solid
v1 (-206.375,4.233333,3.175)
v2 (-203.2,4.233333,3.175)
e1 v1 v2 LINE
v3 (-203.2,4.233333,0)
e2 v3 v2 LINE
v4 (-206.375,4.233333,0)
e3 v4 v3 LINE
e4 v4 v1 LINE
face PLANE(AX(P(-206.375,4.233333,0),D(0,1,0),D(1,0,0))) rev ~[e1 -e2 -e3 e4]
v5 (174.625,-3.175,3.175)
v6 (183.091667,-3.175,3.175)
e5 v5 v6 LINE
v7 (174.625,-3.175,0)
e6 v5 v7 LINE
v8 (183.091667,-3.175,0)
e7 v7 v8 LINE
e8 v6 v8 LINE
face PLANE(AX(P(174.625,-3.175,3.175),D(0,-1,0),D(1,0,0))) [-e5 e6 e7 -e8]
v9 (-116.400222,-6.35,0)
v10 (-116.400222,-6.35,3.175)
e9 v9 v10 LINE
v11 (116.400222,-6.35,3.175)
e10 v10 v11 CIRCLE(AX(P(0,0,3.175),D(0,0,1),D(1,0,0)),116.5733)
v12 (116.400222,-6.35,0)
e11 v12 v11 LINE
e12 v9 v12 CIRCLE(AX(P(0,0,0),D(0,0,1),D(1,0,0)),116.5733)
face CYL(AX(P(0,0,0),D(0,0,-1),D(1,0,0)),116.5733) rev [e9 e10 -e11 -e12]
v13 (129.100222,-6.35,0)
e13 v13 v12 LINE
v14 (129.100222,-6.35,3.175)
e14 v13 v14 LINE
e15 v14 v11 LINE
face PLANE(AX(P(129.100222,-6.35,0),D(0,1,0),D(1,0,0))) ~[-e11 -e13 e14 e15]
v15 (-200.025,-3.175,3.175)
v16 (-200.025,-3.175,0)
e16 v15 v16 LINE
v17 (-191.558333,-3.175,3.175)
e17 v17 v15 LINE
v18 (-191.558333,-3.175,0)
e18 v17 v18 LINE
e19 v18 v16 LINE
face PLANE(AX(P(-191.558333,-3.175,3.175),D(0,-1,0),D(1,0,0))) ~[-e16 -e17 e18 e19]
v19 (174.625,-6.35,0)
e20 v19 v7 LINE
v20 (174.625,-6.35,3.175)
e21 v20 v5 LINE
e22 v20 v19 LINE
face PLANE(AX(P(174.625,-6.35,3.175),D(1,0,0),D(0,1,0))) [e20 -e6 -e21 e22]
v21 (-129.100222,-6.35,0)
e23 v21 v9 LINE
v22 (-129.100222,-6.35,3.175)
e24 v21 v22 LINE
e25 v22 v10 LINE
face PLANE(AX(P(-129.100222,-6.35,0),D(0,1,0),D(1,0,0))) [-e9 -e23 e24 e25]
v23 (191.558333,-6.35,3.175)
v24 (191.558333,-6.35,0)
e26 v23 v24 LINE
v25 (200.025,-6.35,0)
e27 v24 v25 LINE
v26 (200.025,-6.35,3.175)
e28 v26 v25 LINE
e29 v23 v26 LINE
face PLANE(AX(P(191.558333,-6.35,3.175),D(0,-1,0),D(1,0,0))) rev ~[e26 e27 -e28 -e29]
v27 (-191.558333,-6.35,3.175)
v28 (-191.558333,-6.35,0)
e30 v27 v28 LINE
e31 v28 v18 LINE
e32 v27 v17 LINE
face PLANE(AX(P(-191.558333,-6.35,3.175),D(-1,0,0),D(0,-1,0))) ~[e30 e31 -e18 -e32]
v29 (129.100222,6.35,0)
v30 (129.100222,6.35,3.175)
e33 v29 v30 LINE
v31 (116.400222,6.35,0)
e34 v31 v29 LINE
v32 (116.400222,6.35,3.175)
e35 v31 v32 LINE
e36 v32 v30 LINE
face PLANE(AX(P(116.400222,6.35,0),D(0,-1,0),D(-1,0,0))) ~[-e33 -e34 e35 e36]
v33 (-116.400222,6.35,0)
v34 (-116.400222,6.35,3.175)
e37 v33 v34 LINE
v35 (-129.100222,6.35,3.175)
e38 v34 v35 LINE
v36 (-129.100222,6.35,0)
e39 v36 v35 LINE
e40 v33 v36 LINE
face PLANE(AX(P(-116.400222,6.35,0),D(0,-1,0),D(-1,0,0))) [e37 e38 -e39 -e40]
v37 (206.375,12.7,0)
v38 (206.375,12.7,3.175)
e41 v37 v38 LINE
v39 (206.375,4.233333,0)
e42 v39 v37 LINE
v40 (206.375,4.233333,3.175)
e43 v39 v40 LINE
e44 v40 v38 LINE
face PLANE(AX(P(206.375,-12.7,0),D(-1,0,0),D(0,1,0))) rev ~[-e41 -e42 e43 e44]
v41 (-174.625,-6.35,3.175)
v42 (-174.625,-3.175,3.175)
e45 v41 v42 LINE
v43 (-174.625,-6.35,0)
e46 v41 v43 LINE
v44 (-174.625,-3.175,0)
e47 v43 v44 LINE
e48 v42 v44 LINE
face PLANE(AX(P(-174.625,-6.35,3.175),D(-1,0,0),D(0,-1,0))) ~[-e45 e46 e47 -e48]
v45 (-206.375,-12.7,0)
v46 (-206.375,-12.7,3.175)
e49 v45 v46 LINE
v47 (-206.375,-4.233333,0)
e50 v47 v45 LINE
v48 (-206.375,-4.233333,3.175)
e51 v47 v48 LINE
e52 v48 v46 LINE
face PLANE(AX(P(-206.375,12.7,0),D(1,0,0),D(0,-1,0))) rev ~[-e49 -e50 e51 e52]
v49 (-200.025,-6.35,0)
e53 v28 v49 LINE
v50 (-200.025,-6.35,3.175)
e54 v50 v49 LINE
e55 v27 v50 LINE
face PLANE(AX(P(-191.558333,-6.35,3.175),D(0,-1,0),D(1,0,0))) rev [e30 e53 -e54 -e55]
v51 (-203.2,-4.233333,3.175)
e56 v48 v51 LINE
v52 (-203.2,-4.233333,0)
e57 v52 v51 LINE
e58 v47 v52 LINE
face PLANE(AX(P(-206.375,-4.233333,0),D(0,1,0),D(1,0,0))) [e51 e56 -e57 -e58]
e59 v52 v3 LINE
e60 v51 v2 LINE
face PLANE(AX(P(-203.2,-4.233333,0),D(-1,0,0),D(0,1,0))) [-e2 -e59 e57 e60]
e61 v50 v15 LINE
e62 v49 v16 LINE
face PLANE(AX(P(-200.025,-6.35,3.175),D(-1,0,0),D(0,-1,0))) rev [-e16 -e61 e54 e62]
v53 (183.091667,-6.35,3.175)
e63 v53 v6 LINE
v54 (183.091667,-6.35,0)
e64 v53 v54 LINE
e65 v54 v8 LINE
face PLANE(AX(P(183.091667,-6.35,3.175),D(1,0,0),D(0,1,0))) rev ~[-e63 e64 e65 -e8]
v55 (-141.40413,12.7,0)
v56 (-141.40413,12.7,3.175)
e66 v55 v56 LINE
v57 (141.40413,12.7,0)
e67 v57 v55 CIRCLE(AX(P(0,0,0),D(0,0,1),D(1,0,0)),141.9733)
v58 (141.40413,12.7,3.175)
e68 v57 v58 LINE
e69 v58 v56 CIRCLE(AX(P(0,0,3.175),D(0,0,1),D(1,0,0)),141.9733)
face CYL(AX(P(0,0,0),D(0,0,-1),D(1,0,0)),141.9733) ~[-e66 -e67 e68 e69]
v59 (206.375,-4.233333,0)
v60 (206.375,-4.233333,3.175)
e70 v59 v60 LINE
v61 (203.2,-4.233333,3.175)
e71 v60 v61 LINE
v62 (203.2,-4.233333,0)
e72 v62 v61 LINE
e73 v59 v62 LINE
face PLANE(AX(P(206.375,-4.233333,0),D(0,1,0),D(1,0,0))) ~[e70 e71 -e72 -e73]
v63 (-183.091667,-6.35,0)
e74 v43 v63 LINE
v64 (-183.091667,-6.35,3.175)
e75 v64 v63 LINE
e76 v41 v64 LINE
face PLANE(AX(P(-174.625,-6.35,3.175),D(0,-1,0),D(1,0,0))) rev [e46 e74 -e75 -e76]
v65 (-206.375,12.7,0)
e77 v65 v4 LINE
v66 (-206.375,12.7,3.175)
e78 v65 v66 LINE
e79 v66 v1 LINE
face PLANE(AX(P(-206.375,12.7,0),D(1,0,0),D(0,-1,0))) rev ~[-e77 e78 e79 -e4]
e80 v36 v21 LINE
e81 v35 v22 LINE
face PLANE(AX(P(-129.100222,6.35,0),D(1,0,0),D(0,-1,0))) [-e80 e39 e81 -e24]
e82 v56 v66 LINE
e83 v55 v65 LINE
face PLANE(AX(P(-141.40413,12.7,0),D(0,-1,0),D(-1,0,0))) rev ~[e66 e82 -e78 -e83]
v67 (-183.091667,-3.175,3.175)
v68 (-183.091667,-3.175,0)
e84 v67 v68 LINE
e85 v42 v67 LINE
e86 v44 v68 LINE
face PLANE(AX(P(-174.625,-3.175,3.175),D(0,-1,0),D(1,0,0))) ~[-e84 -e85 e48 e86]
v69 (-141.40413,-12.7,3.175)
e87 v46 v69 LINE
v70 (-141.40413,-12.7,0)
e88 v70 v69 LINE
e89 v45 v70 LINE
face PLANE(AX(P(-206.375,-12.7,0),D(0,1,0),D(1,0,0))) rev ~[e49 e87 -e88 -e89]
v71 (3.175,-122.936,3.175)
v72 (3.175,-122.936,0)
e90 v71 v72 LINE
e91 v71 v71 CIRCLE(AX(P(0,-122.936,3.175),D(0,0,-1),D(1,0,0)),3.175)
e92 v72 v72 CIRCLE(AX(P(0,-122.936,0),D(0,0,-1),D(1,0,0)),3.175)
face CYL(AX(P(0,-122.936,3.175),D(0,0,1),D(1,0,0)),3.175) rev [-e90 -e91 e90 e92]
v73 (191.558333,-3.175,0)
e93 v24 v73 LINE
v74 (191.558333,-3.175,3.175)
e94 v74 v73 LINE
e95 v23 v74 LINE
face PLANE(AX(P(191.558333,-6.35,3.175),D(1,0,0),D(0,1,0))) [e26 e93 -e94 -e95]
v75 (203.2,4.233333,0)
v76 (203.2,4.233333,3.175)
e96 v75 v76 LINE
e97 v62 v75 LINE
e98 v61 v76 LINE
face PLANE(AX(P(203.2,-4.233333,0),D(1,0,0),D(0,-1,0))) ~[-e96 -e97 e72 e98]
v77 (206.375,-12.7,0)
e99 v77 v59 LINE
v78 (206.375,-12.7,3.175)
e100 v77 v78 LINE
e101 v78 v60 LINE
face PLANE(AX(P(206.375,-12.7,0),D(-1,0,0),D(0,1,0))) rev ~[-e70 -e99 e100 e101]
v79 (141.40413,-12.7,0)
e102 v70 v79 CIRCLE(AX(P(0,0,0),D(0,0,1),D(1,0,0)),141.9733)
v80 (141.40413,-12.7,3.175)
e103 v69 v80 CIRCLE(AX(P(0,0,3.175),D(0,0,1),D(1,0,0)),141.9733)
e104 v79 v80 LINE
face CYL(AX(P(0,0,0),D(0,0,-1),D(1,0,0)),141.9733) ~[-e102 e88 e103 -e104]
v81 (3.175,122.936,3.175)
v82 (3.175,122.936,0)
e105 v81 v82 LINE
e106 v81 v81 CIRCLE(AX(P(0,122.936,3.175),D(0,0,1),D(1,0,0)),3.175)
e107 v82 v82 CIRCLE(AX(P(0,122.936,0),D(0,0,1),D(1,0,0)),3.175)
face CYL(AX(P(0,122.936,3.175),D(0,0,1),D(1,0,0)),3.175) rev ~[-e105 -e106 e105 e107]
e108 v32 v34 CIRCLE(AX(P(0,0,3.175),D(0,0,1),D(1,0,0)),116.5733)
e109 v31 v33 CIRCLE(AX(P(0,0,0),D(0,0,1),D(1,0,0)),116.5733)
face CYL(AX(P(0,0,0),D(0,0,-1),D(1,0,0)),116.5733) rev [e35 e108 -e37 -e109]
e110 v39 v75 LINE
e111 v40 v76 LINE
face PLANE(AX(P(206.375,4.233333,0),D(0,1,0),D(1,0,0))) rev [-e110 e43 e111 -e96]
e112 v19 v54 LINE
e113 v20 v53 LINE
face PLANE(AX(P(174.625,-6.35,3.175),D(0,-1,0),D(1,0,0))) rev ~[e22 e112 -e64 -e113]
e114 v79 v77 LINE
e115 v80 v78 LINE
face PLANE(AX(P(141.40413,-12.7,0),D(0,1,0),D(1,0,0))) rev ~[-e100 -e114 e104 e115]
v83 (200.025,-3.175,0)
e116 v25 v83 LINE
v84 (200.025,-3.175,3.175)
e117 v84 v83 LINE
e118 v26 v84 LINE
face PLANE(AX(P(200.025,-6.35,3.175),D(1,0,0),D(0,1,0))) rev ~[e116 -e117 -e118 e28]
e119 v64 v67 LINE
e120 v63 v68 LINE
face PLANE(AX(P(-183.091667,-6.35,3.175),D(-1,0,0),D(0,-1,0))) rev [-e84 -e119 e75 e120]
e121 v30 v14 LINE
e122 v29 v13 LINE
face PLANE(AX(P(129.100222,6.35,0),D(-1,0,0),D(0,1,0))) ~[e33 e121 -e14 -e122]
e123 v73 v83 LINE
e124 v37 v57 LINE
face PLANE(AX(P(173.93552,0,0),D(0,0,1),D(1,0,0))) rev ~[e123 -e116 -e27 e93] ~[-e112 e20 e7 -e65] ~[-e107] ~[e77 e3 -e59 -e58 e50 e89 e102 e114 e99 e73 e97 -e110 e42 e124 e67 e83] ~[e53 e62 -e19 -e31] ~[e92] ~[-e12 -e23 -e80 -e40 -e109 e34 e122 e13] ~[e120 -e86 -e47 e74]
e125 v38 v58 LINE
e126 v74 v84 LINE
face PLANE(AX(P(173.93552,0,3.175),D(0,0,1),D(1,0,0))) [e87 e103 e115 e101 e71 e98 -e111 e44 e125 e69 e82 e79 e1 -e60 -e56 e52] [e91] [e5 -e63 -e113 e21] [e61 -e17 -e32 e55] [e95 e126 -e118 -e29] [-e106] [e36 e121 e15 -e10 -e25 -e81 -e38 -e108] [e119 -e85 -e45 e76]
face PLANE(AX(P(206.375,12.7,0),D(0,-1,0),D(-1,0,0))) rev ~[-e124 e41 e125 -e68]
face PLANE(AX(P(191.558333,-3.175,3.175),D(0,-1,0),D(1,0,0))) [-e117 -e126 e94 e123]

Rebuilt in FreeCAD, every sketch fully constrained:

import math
import FreeCAD as App
import Part
import Sketcher

V = App.Vector
Q = App.Units.Quantity

doc = App.newDocument("Part")
body = doc.addObject("PartDesign::Body", "Body")

# Sketch on XY plane
sketch1 = doc.addObject("Sketcher::SketchObject", "Sketch")
body.addObject(sketch1)
sketch1.AttachmentSupport = (doc.XY_Plane, [""])
sketch1.MapMode = "FlatFace"
sketch1.addGeometry(Part.LineSegment(V(-206.375, -12.7, 0), V(-141.40413, -12.7, 0)), False)
sketch1.addGeometry(Part.ArcOfCircle(Part.Circle(V(0, 0, 0), V(0, 0, 1), 141.9733), math.radians(-174.867835), math.radians(-5.132165)), False)
sketch1.addGeometry(Part.LineSegment(V(141.40413, -12.7, 0), V(206.375, -12.7, 0)), False)
sketch1.addGeometry(Part.LineSegment(V(206.375, -12.7, 0), V(206.375, 12.7, 0)), False)
sketch1.addGeometry(Part.LineSegment(V(206.375, 12.7, 0), V(141.40413, 12.7, 0)), False)
sketch1.addGeometry(Part.ArcOfCircle(Part.Circle(V(0, 0, 0), V(0, 0, 1), 141.9733), math.radians(5.132165), math.radians(174.867835)), False)
sketch1.addGeometry(Part.LineSegment(V(-141.40413, 12.7, 0), V(-206.375, 12.7, 0)), False)
sketch1.addGeometry(Part.LineSegment(V(-206.375, 12.7, 0), V(-206.375, -12.7, 0)), False)
sketch1.addGeometry(Part.Circle(V(0, 0, 0), V(0, 0, 1), 116.5733), False)
sketch1.addConstraint(Sketcher.Constraint("Coincident", 0, 2, 1, 1))
sketch1.addConstraint(Sketcher.Constraint("Coincident", 1, 2, 2, 1))
sketch1.addConstraint(Sketcher.Constraint("Coincident", 2, 2, 3, 1))
sketch1.addConstraint(Sketcher.Constraint("Coincident", 3, 2, 4, 1))
sketch1.addConstraint(Sketcher.Constraint("Coincident", 4, 2, 5, 1))
sketch1.addConstraint(Sketcher.Constraint("Coincident", 5, 2, 6, 1))
sketch1.addConstraint(Sketcher.Constraint("Coincident", 6, 2, 7, 1))
sketch1.addConstraint(Sketcher.Constraint("Coincident", 7, 2, 0, 1))
sketch1.addConstraint(Sketcher.Constraint("Horizontal", 0))
sketch1.addConstraint(Sketcher.Constraint("Horizontal", 2))
sketch1.addConstraint(Sketcher.Constraint("Vertical", 3))
sketch1.addConstraint(Sketcher.Constraint("Horizontal", 4))
sketch1.addConstraint(Sketcher.Constraint("Horizontal", 6))
sketch1.addConstraint(Sketcher.Constraint("Vertical", 7))
sketch1.addConstraint(Sketcher.Constraint("Coincident", 1, 3, -1, 1))
sketch1.addConstraint(Sketcher.Constraint("Coincident", 5, 3, -1, 1))
sketch1.addConstraint(Sketcher.Constraint("Coincident", 8, 3, -1, 1))
sketch1.addConstraint(Sketcher.Constraint("Equal", 1, 5))
sketch1.addConstraint(Sketcher.Constraint("Symmetric", 2, 2, 6, 2, -1, 1))
sketch1.addConstraint(Sketcher.Constraint("Horizontal", 0, 2, 1, 2))
sketch1.addConstraint(Sketcher.Constraint("Horizontal", 4, 2, 5, 2))
sketch1.addConstraint(Sketcher.Constraint("DistanceY", 3, 1, 3, 2, Q("1 in")))
sketch1.addConstraint(Sketcher.Constraint("Diameter", 8, Q("9.179 in")))
sketch1.addConstraint(Sketcher.Constraint("Radius", 1, Q("5.5895 in")))
sketch1.addConstraint(Sketcher.Constraint("DistanceX", -1, 1, 2, 2, Q("8.125 in")))
pad1 = doc.addObject("PartDesign::Pad", "Pad")
body.addObject(pad1)
pad1.Profile = sketch1
pad1.Length = Q("0.125 in")

# Sketch on XY plane
sketch2 = doc.addObject("Sketcher::SketchObject", "Sketch001")
body.addObject(sketch2)
sketch2.AttachmentSupport = (doc.XY_Plane, [""])
sketch2.MapMode = "FlatFace"
sketch2.addGeometry(Part.LineSegment(V(-206.375, 4.233333, 0), V(-206.375, -4.233333, 0)), False)
sketch2.addGeometry(Part.LineSegment(V(-206.375, -4.233333, 0), V(-203.2, -4.233333, 0)), False)
sketch2.addGeometry(Part.LineSegment(V(-203.2, -4.233333, 0), V(-203.2, 4.233333, 0)), False)
sketch2.addGeometry(Part.LineSegment(V(-203.2, 4.233333, 0), V(-206.375, 4.233333, 0)), False)
sketch2.addGeometry(Part.LineSegment(V(-116.400222, 6.35, 0), V(-129.100222, 6.35, 0)), False)
sketch2.addGeometry(Part.LineSegment(V(-129.100222, 6.35, 0), V(-129.100222, -6.35, 0)), False)
sketch2.addGeometry(Part.LineSegment(V(-129.100222, -6.35, 0), V(-116.400222, -6.35, 0)), False)
sketch2.addGeometry(Part.ArcOfCircle(Part.Circle(V(0, 0, 0), V(0, 0, 1), 116.5733), math.radians(176.877429), math.radians(183.122571)), False)
sketch2.addConstraint(Sketcher.Constraint("Coincident", 0, 2, 1, 1))
sketch2.addConstraint(Sketcher.Constraint("Coincident", 1, 2, 2, 1))
sketch2.addConstraint(Sketcher.Constraint("Coincident", 2, 2, 3, 1))
sketch2.addConstraint(Sketcher.Constraint("Coincident", 3, 2, 0, 1))
sketch2.addConstraint(Sketcher.Constraint("Coincident", 4, 2, 5, 1))
sketch2.addConstraint(Sketcher.Constraint("Coincident", 5, 2, 6, 1))
sketch2.addConstraint(Sketcher.Constraint("Coincident", 6, 2, 7, 2))
sketch2.addConstraint(Sketcher.Constraint("Coincident", 7, 1, 4, 1))
sketch2.addConstraint(Sketcher.Constraint("Vertical", 0))
sketch2.addConstraint(Sketcher.Constraint("Horizontal", 1))
sketch2.addConstraint(Sketcher.Constraint("Vertical", 2))
sketch2.addConstraint(Sketcher.Constraint("Horizontal", 3))
sketch2.addConstraint(Sketcher.Constraint("Horizontal", 4))
sketch2.addConstraint(Sketcher.Constraint("Vertical", 5))
sketch2.addConstraint(Sketcher.Constraint("Horizontal", 6))
sketch2.addConstraint(Sketcher.Constraint("Coincident", 7, 3, -1, 1))
sketch2.addConstraint(Sketcher.Constraint("Vertical", 6, 2, 7, 1))
sketch2.addConstraint(Sketcher.Constraint("Equal", 6, 5))
sketch2.addConstraint(Sketcher.Constraint("DistanceX", 4, 2, 4, 1, Q("0.5 in")))
sketch2.addConstraint(Sketcher.Constraint("DistanceX", 1, 2, -1, 1, Q("8 in")))
sketch2.addConstraint(Sketcher.Constraint("Radius", 7, Q("4.5895 in")))
sketch2.addConstraint(Sketcher.Constraint("DistanceX", 1, 1, 1, 2, Q("0.125 in")))
sketch2.addConstraint(Sketcher.Constraint("DistanceY", 0, 2, 0, 1, 8.466667))
sketch2.addConstraint(Sketcher.Constraint("DistanceY", 0, 2, -1, 1, 4.233333))
pocket1 = doc.addObject("PartDesign::Pocket", "Pocket")
body.addObject(pocket1)
pocket1.Profile = sketch2
pocket1.Length = Q("0.125 in")
pocket1.Reversed = True
doc.recompute()

mirrored = doc.addObject("PartDesign::Mirrored", "Mirrored")
body.addObject(mirrored)
mirrored.Originals = [pocket1]
mirrored.MirrorPlane = (doc.YZ_Plane, [""])
body.Tip = mirrored

# Sketch on XY plane
sketch3 = doc.addObject("Sketcher::SketchObject", "Sketch002")
body.addObject(sketch3)
sketch3.AttachmentSupport = (doc.XY_Plane, [""])
sketch3.MapMode = "FlatFace"
sketch3.AttachmentOffset = App.Placement(V(0, 0, 0.125 * 25.4), App.Rotation())
sketch3.addGeometry(Part.Circle(V(0, 122.936, 0), V(0, 0, 1), 3.175), False)
sketch3.addConstraint(Sketcher.Constraint("PointOnObject", 0, 3, -2))
sketch3.addConstraint(Sketcher.Constraint("Diameter", 0, Q("0.25 in")))
sketch3.addConstraint(Sketcher.Constraint("DistanceY", -1, 1, 0, 3, Q("4.84 in")))
pocket2 = doc.addObject("PartDesign::Pocket", "Pocket001")
body.addObject(pocket2)
pocket2.Profile = sketch3
pocket2.Length = Q("0.125 in")
doc.recompute()

mirrored2 = doc.addObject("PartDesign::Mirrored", "Mirrored001")
body.addObject(mirrored2)
mirrored2.Originals = [pocket2]
mirrored2.MirrorPlane = (doc.XZ_Plane, [""])
body.Tip = mirrored2

# Sketch on XY plane
sketch4 = doc.addObject("Sketcher::SketchObject", "Sketch003")
body.addObject(sketch4)
sketch4.AttachmentSupport = (doc.XY_Plane, [""])
sketch4.MapMode = "FlatFace"
sketch4.AttachmentOffset = App.Placement(V(0, 0, 0.125 * 25.4), App.Rotation())
sketch4.addGeometry(Part.LineSegment(V(191.558333, -3.175, 0), V(191.558333, -6.35, 0)), False)
sketch4.addGeometry(Part.LineSegment(V(191.558333, -6.35, 0), V(200.025, -6.35, 0)), False)
sketch4.addGeometry(Part.LineSegment(V(200.025, -6.35, 0), V(200.025, -3.175, 0)), False)
sketch4.addGeometry(Part.LineSegment(V(200.025, -3.175, 0), V(191.558333, -3.175, 0)), False)
sketch4.addGeometry(Part.LineSegment(V(174.625, -3.175, 0), V(174.625, -6.35, 0)), False)
sketch4.addGeometry(Part.LineSegment(V(174.625, -6.35, 0), V(183.091667, -6.35, 0)), False)
sketch4.addGeometry(Part.LineSegment(V(183.091667, -6.35, 0), V(183.091667, -3.175, 0)), False)
sketch4.addGeometry(Part.LineSegment(V(183.091667, -3.175, 0), V(174.625, -3.175, 0)), False)
sketch4.addConstraint(Sketcher.Constraint("Coincident", 0, 2, 1, 1))
sketch4.addConstraint(Sketcher.Constraint("Coincident", 1, 2, 2, 1))
sketch4.addConstraint(Sketcher.Constraint("Coincident", 2, 2, 3, 1))
sketch4.addConstraint(Sketcher.Constraint("Coincident", 3, 2, 0, 1))
sketch4.addConstraint(Sketcher.Constraint("Coincident", 4, 2, 5, 1))
sketch4.addConstraint(Sketcher.Constraint("Coincident", 5, 2, 6, 1))
sketch4.addConstraint(Sketcher.Constraint("Coincident", 6, 2, 7, 1))
sketch4.addConstraint(Sketcher.Constraint("Coincident", 7, 2, 4, 1))
sketch4.addConstraint(Sketcher.Constraint("Vertical", 0))
sketch4.addConstraint(Sketcher.Constraint("Horizontal", 1))
sketch4.addConstraint(Sketcher.Constraint("Vertical", 2))
sketch4.addConstraint(Sketcher.Constraint("Horizontal", 3))
sketch4.addConstraint(Sketcher.Constraint("Vertical", 4))
sketch4.addConstraint(Sketcher.Constraint("Horizontal", 5))
sketch4.addConstraint(Sketcher.Constraint("Vertical", 6))
sketch4.addConstraint(Sketcher.Constraint("Horizontal", 7))
sketch4.addConstraint(Sketcher.Constraint("Horizontal", 1, 2, 4, 2))
sketch4.addConstraint(Sketcher.Constraint("Horizontal", 3, 2, 6, 2))
sketch4.addConstraint(Sketcher.Constraint("Equal", 3, 5))
sketch4.addConstraint(Sketcher.Constraint("DistanceX", 4, 2, 1, 2, Q("1 in")))
sketch4.addConstraint(Sketcher.Constraint("DistanceY", 0, 2, 0, 1, Q("0.125 in")))
sketch4.addConstraint(Sketcher.Constraint("DistanceY", 0, 2, -1, 1, Q("0.25 in")))
sketch4.addConstraint(Sketcher.Constraint("DistanceX", -1, 1, 1, 2, Q("7.875 in")))
sketch4.addConstraint(Sketcher.Constraint("DistanceX", 1, 1, 1, 2, 8.466667))
pocket3 = doc.addObject("PartDesign::Pocket", "Pocket002")
body.addObject(pocket3)
pocket3.Profile = sketch4
pocket3.Length = Q("0.125 in")
doc.recompute()

mirrored3 = doc.addObject("PartDesign::Mirrored", "Mirrored002")
body.addObject(mirrored3)
mirrored3.Originals = [pocket3]
mirrored3.MirrorPlane = (doc.YZ_Plane, [""])
body.Tip = mirrored3

doc.recompute()
